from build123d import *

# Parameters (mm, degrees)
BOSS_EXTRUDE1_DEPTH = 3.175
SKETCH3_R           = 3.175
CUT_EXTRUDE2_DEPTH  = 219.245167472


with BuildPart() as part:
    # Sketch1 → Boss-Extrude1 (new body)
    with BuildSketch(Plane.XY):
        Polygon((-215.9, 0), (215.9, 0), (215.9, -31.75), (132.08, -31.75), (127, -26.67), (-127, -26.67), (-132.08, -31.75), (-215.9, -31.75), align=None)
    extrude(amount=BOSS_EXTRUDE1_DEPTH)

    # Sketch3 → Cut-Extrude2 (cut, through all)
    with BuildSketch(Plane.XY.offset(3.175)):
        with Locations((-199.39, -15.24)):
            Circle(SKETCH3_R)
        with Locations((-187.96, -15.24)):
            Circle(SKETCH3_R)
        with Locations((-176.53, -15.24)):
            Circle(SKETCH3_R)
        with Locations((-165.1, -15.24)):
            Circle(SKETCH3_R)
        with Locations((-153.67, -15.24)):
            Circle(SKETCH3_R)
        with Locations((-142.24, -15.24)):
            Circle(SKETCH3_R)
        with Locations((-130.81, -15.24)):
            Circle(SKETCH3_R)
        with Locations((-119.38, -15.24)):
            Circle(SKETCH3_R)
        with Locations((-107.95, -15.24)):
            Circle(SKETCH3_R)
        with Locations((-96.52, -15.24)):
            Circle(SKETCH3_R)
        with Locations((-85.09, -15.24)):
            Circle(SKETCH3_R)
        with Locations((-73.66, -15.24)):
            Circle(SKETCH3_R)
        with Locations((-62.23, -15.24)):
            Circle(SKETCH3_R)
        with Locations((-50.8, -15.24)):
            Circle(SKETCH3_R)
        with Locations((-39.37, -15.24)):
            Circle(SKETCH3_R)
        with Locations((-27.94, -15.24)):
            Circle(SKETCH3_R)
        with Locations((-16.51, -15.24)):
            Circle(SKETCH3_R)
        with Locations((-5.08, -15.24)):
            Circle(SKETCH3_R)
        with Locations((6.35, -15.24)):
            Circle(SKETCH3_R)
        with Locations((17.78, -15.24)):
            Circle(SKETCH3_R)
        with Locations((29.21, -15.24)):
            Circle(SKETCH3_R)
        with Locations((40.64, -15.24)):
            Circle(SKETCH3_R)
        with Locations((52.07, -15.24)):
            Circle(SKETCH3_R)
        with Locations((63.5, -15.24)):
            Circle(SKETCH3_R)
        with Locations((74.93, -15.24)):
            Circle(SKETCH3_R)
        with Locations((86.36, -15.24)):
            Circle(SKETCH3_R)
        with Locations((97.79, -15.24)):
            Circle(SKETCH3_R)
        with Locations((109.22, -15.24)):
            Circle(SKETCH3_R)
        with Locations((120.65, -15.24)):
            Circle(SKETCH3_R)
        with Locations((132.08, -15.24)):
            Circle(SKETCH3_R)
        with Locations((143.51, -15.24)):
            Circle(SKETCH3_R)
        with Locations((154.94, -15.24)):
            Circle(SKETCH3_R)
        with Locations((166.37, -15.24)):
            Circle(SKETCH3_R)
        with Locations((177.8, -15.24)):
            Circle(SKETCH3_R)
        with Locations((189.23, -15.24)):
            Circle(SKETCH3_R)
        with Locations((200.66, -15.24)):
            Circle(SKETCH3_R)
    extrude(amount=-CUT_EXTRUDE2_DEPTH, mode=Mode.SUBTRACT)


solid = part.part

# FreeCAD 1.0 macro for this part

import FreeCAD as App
import Part
import Sketcher
from FreeCAD import Vector
Q = App.Units.Quantity


def add_polygon(sketch, points):
    """Adds a closed chain of lines whose ends are joined by coincident constraints."""
    first, n = sketch.GeometryCount, len(points)
    for a, b in zip(points, points[1:] + points[:1]):
        sketch.addGeometry(Part.LineSegment(App.Vector(*a, 0), App.Vector(*b, 0)), False)
    for i in range(n):
        sketch.addConstraint(Sketcher.Constraint("Coincident", first + i, 2, first + (i + 1) % n, 1))

doc = App.newDocument("Part")
params = doc.addObject("Spreadsheet::Sheet", "Params")
for row, (alias, value) in enumerate([
    ("sketch1_width", "17 in"),
    ("sketch1_width2", "10 in"),
    ("sketch1_width3", "3.3 in"),
    ("sketch1_height", "1.25 in"),
    ("pad1_length", "0.125 in"),
    ("sketch2_diameter", "0.25 in"),
], start=1):
    params.set(f"A{row}", alias)
    params.set(f"B{row}", "=" + value)
    params.setAlias(f"B{row}", alias)

body = doc.addObject("PartDesign::Body", "Body")

sketch1 = body.newObject("Sketcher::SketchObject", "Sketch")
sketch1.AttachmentSupport = (doc.getObject("XY_Plane"), [""])
sketch1.MapMode = "FlatFace"
add_polygon(sketch1, [(216, 0), (-216, 0), (-216, -32), (-132, -32), (-127, -27), (127, -27), (132, -32), (216, -32)])
sketch1.addConstraint([
    Sketcher.Constraint("Horizontal", 0),
    Sketcher.Constraint("Vertical", 1),
    Sketcher.Constraint("Horizontal", 2),
    Sketcher.Constraint("Horizontal", 4),
    Sketcher.Constraint("Horizontal", 6),
    Sketcher.Constraint("Vertical", 7),
    Sketcher.Constraint("Symmetric", 0, 2, 7, 2, -1, 1),
    Sketcher.Constraint("Symmetric", 2, 2, 5, 2, -2),
    Sketcher.Constraint("Perpendicular", 3, 5),
    Sketcher.Constraint("Equal", 3, 5),
    Sketcher.Constraint("DistanceX", 0, 2, 0, 1, Q("17 in")),
    Sketcher.Constraint("DistanceX", 4, 1, 4, 2, Q("10 in")),
    Sketcher.Constraint("DistanceX", 2, 1, 2, 2, Q("3.3 in")),
    Sketcher.Constraint("DistanceY", 1, 2, 1, 1, Q("1.25 in")),
])
sketch1.setExpression("Constraints[18]", "Params.sketch1_width")
sketch1.setExpression("Constraints[19]", "Params.sketch1_width2")
sketch1.setExpression("Constraints[20]", "Params.sketch1_width3")
sketch1.setExpression("Constraints[21]", "Params.sketch1_height")
pad1 = body.newObject("PartDesign::Pad", "Pad")
pad1.Profile = sketch1
pad1.setExpression("Length", "Params.pad1_length")

sketch2 = body.newObject("Sketcher::SketchObject", "Sketch001")
sketch2.AttachmentSupport = (doc.getObject("XY_Plane"), [""])
sketch2.MapMode = "FlatFace"
sketch2.AttachmentOffset = App.Placement(Vector(0, 0, 0.125 * 25.4), App.Rotation())
sketch2.addGeometry([
    Part.Circle(Vector(-199.4, -15.2, 0), Vector(0, 0, 1), 3.2),
    Part.Circle(Vector(-188, -15.2, 0), Vector(0, 0, 1), 3.2),
    Part.Circle(Vector(-176.5, -15.2, 0), Vector(0, 0, 1), 3.2),
    Part.Circle(Vector(-165.1, -15.2, 0), Vector(0, 0, 1), 3.2),
    Part.Circle(Vector(-153.7, -15.2, 0), Vector(0, 0, 1), 3.2),
    Part.Circle(Vector(-142.2, -15.2, 0), Vector(0, 0, 1), 3.2),
    Part.Circle(Vector(-130.8, -15.2, 0), Vector(0, 0, 1), 3.2),
    Part.Circle(Vector(-119.4, -15.2, 0), Vector(0, 0, 1), 3.2),
    Part.Circle(Vector(-108, -15.2, 0), Vector(0, 0, 1), 3.2),
    Part.Circle(Vector(-96.5, -15.2, 0), Vector(0, 0, 1), 3.2),
    Part.Circle(Vector(-85.1, -15.2, 0), Vector(0, 0, 1), 3.2),
    Part.Circle(Vector(-73.7, -15.2, 0), Vector(0, 0, 1), 3.2),
    Part.Circle(Vector(-62.2, -15.2, 0), Vector(0, 0, 1), 3.2),
    Part.Circle(Vector(-50.8, -15.2, 0), Vector(0, 0, 1), 3.2),
    Part.Circle(Vector(-39.4, -15.2, 0), Vector(0, 0, 1), 3.2),
    Part.Circle(Vector(-27.9, -15.2, 0), Vector(0, 0, 1), 3.2),
    Part.Circle(Vector(-16.5, -15.2, 0), Vector(0, 0, 1), 3.2),
    Part.Circle(Vector(-5.1, -15.2, 0), Vector(0, 0, 1), 3.2),
    Part.Circle(Vector(6.3, -15.2, 0), Vector(0, 0, 1), 3.2),
    Part.Circle(Vector(17.8, -15.2, 0), Vector(0, 0, 1), 3.2),
    Part.Circle(Vector(29.2, -15.2, 0), Vector(0, 0, 1), 3.2),
    Part.Circle(Vector(40.6, -15.2, 0), Vector(0, 0, 1), 3.2),
    Part.Circle(Vector(52.1, -15.2, 0), Vector(0, 0, 1), 3.2),
    Part.Circle(Vector(63.5, -15.2, 0), Vector(0, 0, 1), 3.2),
    Part.Circle(Vector(74.9, -15.2, 0), Vector(0, 0, 1), 3.2),
    Part.Circle(Vector(86.4, -15.2, 0), Vector(0, 0, 1), 3.2),
    Part.Circle(Vector(97.8, -15.2, 0), Vector(0, 0, 1), 3.2),
    Part.Circle(Vector(109.2, -15.2, 0), Vector(0, 0, 1), 3.2),
    Part.Circle(Vector(120.7, -15.2, 0), Vector(0, 0, 1), 3.2),
    Part.Circle(Vector(132.1, -15.2, 0), Vector(0, 0, 1), 3.2),
    Part.Circle(Vector(143.5, -15.2, 0), Vector(0, 0, 1), 3.2),
    Part.Circle(Vector(154.9, -15.2, 0), Vector(0, 0, 1), 3.2),
    Part.Circle(Vector(166.4, -15.2, 0), Vector(0, 0, 1), 3.2),
    Part.Circle(Vector(177.8, -15.2, 0), Vector(0, 0, 1), 3.2),
    Part.Circle(Vector(189.2, -15.2, 0), Vector(0, 0, 1), 3.2),
    Part.Circle(Vector(200.7, -15.2, 0), Vector(0, 0, 1), 3.2),
], False)
sketch2.addConstraint([
    Sketcher.Constraint("Equal", 0, 1),
    Sketcher.Constraint("Equal", 1, 2),
    Sketcher.Constraint("Equal", 2, 3),
    Sketcher.Constraint("Equal", 3, 4),
    Sketcher.Constraint("Equal", 4, 5),
    Sketcher.Constraint("Equal", 5, 6),
    Sketcher.Constraint("Equal", 6, 7),
    Sketcher.Constraint("Equal", 7, 8),
    Sketcher.Constraint("Equal", 8, 9),
    Sketcher.Constraint("Equal", 9, 10),
    Sketcher.Constraint("Equal", 10, 11),
    Sketcher.Constraint("Equal", 11, 12),
    Sketcher.Constraint("Equal", 12, 13),
    Sketcher.Constraint("Equal", 13, 14),
    Sketcher.Constraint("Equal", 14, 15),
    Sketcher.Constraint("Equal", 15, 16),
    Sketcher.Constraint("Equal", 16, 17),
    Sketcher.Constraint("Equal", 17, 18),
    Sketcher.Constraint("Equal", 18, 19),
    Sketcher.Constraint("Equal", 19, 20),
    Sketcher.Constraint("Equal", 20, 21),
    Sketcher.Constraint("Equal", 21, 22),
    Sketcher.Constraint("Equal", 22, 23),
    Sketcher.Constraint("Equal", 23, 24),
    Sketcher.Constraint("Equal", 24, 25),
    Sketcher.Constraint("Equal", 25, 26),
    Sketcher.Constraint("Equal", 26, 27),
    Sketcher.Constraint("Equal", 27, 28),
    Sketcher.Constraint("Equal", 28, 29),
    Sketcher.Constraint("Equal", 29, 30),
    Sketcher.Constraint("Equal", 30, 31),
    Sketcher.Constraint("Equal", 31, 32),
    Sketcher.Constraint("Equal", 32, 33),
    Sketcher.Constraint("Equal", 33, 34),
    Sketcher.Constraint("Equal", 34, 35),
    Sketcher.Constraint("Horizontal", 0, 3, 1, 3),
    Sketcher.Constraint("Horizontal", 1, 3, 2, 3),
    Sketcher.Constraint("Horizontal", 2, 3, 3, 3),
    Sketcher.Constraint("Horizontal", 3, 3, 4, 3),
    Sketcher.Constraint("Horizontal", 4, 3, 5, 3),
    Sketcher.Constraint("Horizontal", 5, 3, 6, 3),
    Sketcher.Constraint("Horizontal", 6, 3, 7, 3),
    Sketcher.Constraint("Horizontal", 7, 3, 8, 3),
    Sketcher.Constraint("Horizontal", 8, 3, 9, 3),
    Sketcher.Constraint("Horizontal", 9, 3, 10, 3),
    Sketcher.Constraint("Horizontal", 10, 3, 11, 3),
    Sketcher.Constraint("Horizontal", 11, 3, 12, 3),
    Sketcher.Constraint("Horizontal", 12, 3, 13, 3),
    Sketcher.Constraint("Horizontal", 13, 3, 14, 3),
    Sketcher.Constraint("Horizontal", 14, 3, 15, 3),
    Sketcher.Constraint("Horizontal", 15, 3, 16, 3),
    Sketcher.Constraint("Horizontal", 16, 3, 17, 3),
    Sketcher.Constraint("Horizontal", 17, 3, 18, 3),
    Sketcher.Constraint("Horizontal", 18, 3, 19, 3),
    Sketcher.Constraint("Horizontal", 19, 3, 20, 3),
    Sketcher.Constraint("Horizontal", 20, 3, 21, 3),
    Sketcher.Constraint("Horizontal", 21, 3, 22, 3),
    Sketcher.Constraint("Horizontal", 22, 3, 23, 3),
    Sketcher.Constraint("Horizontal", 23, 3, 24, 3),
    Sketcher.Constraint("Horizontal", 24, 3, 25, 3),
    Sketcher.Constraint("Horizontal", 25, 3, 26, 3),
    Sketcher.Constraint("Horizontal", 26, 3, 27, 3),
    Sketcher.Constraint("Horizontal", 27, 3, 28, 3),
    Sketcher.Constraint("Horizontal", 28, 3, 29, 3),
    Sketcher.Constraint("Horizontal", 29, 3, 30, 3),
    Sketcher.Constraint("Horizontal", 30, 3, 31, 3),
    Sketcher.Constraint("Horizontal", 31, 3, 32, 3),
    Sketcher.Constraint("Horizontal", 32, 3, 33, 3),
    Sketcher.Constraint("Horizontal", 33, 3, 34, 3),
    Sketcher.Constraint("Horizontal", 34, 3, 35, 3),
    Sketcher.Constraint("Diameter", 0, Q("0.25 in")),
    Sketcher.Constraint("DistanceX", 13, 3, -1, 1, Q("2 in")),
    Sketcher.Constraint("DistanceX", -1, 1, 33, 3, Q("7 in")),
    Sketcher.Constraint("DistanceY", 0, 3, -1, 1, Q("0.6 in")),
    Sketcher.Constraint("DistanceX", 1, 3, -1, 1, Q("7.4 in")),
    Sketcher.Constraint("DistanceX", 3, 3, -1, 1, Q("6.5 in")),
    Sketcher.Constraint("DistanceX", 5, 3, -1, 1, Q("5.6 in")),
    Sketcher.Constraint("DistanceX", 7, 3, -1, 1, Q("4.7 in")),
    Sketcher.Constraint("DistanceX", 9, 3, -1, 1, Q("3.8 in")),
    Sketcher.Constraint("DistanceX", 11, 3, -1, 1, Q("2.9 in")),
    Sketcher.Constraint("DistanceX", 15, 3, -1, 1, Q("1.1 in")),
    Sketcher.Constraint("DistanceX", 17, 3, -1, 1, Q("0.2 in")),
    Sketcher.Constraint("DistanceX", -1, 1, 19, 3, Q("0.7 in")),
    Sketcher.Constraint("DistanceX", -1, 1, 21, 3, Q("1.6 in")),
    Sketcher.Constraint("DistanceX", -1, 1, 23, 3, Q("2.5 in")),
    Sketcher.Constraint("DistanceX", -1, 1, 25, 3, Q("3.4 in")),
    Sketcher.Constraint("DistanceX", -1, 1, 27, 3, Q("4.3 in")),
    Sketcher.Constraint("DistanceX", -1, 1, 29, 3, Q("5.2 in")),
    Sketcher.Constraint("DistanceX", -1, 1, 31, 3, Q("6.1 in")),
    Sketcher.Constraint("DistanceX", -1, 1, 35, 3, Q("7.9 in")),
    Sketcher.Constraint("DistanceX", 0, 3, 2, 3, Q("0.9 in")),
    Sketcher.Constraint("DistanceX", 2, 3, 4, 3, Q("0.9 in")),
    Sketcher.Constraint("DistanceX", 4, 3, 6, 3, Q("0.9 in")),
    Sketcher.Constraint("DistanceX", 6, 3, 8, 3, Q("0.9 in")),
    Sketcher.Constraint("DistanceX", 8, 3, 10, 3, Q("0.9 in")),
    Sketcher.Constraint("DistanceX", 10, 3, 12, 3, Q("0.9 in")),
    Sketcher.Constraint("DistanceX", 12, 3, 14, 3, Q("0.9 in")),
    Sketcher.Constraint("DistanceX", 14, 3, 16, 3, Q("0.9 in")),
    Sketcher.Constraint("DistanceX", 16, 3, 18, 3, Q("0.9 in")),
    Sketcher.Constraint("DistanceX", 18, 3, 20, 3, Q("0.9 in")),
    Sketcher.Constraint("DistanceX", 20, 3, 22, 3, Q("0.9 in")),
    Sketcher.Constraint("DistanceX", 22, 3, 24, 3, Q("0.9 in")),
    Sketcher.Constraint("DistanceX", 24, 3, 26, 3, Q("0.9 in")),
    Sketcher.Constraint("DistanceX", 26, 3, 28, 3, Q("0.9 in")),
    Sketcher.Constraint("DistanceX", 28, 3, 30, 3, Q("0.9 in")),
    Sketcher.Constraint("DistanceX", 30, 3, 32, 3, Q("0.9 in")),
    Sketcher.Constraint("DistanceX", 32, 3, 34, 3, Q("0.9 in")),
    Sketcher.Constraint("DistanceX", 0, 3, -1, 1, Q("7.85 in")),
])
sketch2.setExpression("Constraints[70]", "Params.sketch2_diameter")
pocket1 = body.newObject("PartDesign::Pocket", "Pocket")
pocket1.Profile = sketch2
pocket1.Type = "ThroughAll"

doc.recompute()
